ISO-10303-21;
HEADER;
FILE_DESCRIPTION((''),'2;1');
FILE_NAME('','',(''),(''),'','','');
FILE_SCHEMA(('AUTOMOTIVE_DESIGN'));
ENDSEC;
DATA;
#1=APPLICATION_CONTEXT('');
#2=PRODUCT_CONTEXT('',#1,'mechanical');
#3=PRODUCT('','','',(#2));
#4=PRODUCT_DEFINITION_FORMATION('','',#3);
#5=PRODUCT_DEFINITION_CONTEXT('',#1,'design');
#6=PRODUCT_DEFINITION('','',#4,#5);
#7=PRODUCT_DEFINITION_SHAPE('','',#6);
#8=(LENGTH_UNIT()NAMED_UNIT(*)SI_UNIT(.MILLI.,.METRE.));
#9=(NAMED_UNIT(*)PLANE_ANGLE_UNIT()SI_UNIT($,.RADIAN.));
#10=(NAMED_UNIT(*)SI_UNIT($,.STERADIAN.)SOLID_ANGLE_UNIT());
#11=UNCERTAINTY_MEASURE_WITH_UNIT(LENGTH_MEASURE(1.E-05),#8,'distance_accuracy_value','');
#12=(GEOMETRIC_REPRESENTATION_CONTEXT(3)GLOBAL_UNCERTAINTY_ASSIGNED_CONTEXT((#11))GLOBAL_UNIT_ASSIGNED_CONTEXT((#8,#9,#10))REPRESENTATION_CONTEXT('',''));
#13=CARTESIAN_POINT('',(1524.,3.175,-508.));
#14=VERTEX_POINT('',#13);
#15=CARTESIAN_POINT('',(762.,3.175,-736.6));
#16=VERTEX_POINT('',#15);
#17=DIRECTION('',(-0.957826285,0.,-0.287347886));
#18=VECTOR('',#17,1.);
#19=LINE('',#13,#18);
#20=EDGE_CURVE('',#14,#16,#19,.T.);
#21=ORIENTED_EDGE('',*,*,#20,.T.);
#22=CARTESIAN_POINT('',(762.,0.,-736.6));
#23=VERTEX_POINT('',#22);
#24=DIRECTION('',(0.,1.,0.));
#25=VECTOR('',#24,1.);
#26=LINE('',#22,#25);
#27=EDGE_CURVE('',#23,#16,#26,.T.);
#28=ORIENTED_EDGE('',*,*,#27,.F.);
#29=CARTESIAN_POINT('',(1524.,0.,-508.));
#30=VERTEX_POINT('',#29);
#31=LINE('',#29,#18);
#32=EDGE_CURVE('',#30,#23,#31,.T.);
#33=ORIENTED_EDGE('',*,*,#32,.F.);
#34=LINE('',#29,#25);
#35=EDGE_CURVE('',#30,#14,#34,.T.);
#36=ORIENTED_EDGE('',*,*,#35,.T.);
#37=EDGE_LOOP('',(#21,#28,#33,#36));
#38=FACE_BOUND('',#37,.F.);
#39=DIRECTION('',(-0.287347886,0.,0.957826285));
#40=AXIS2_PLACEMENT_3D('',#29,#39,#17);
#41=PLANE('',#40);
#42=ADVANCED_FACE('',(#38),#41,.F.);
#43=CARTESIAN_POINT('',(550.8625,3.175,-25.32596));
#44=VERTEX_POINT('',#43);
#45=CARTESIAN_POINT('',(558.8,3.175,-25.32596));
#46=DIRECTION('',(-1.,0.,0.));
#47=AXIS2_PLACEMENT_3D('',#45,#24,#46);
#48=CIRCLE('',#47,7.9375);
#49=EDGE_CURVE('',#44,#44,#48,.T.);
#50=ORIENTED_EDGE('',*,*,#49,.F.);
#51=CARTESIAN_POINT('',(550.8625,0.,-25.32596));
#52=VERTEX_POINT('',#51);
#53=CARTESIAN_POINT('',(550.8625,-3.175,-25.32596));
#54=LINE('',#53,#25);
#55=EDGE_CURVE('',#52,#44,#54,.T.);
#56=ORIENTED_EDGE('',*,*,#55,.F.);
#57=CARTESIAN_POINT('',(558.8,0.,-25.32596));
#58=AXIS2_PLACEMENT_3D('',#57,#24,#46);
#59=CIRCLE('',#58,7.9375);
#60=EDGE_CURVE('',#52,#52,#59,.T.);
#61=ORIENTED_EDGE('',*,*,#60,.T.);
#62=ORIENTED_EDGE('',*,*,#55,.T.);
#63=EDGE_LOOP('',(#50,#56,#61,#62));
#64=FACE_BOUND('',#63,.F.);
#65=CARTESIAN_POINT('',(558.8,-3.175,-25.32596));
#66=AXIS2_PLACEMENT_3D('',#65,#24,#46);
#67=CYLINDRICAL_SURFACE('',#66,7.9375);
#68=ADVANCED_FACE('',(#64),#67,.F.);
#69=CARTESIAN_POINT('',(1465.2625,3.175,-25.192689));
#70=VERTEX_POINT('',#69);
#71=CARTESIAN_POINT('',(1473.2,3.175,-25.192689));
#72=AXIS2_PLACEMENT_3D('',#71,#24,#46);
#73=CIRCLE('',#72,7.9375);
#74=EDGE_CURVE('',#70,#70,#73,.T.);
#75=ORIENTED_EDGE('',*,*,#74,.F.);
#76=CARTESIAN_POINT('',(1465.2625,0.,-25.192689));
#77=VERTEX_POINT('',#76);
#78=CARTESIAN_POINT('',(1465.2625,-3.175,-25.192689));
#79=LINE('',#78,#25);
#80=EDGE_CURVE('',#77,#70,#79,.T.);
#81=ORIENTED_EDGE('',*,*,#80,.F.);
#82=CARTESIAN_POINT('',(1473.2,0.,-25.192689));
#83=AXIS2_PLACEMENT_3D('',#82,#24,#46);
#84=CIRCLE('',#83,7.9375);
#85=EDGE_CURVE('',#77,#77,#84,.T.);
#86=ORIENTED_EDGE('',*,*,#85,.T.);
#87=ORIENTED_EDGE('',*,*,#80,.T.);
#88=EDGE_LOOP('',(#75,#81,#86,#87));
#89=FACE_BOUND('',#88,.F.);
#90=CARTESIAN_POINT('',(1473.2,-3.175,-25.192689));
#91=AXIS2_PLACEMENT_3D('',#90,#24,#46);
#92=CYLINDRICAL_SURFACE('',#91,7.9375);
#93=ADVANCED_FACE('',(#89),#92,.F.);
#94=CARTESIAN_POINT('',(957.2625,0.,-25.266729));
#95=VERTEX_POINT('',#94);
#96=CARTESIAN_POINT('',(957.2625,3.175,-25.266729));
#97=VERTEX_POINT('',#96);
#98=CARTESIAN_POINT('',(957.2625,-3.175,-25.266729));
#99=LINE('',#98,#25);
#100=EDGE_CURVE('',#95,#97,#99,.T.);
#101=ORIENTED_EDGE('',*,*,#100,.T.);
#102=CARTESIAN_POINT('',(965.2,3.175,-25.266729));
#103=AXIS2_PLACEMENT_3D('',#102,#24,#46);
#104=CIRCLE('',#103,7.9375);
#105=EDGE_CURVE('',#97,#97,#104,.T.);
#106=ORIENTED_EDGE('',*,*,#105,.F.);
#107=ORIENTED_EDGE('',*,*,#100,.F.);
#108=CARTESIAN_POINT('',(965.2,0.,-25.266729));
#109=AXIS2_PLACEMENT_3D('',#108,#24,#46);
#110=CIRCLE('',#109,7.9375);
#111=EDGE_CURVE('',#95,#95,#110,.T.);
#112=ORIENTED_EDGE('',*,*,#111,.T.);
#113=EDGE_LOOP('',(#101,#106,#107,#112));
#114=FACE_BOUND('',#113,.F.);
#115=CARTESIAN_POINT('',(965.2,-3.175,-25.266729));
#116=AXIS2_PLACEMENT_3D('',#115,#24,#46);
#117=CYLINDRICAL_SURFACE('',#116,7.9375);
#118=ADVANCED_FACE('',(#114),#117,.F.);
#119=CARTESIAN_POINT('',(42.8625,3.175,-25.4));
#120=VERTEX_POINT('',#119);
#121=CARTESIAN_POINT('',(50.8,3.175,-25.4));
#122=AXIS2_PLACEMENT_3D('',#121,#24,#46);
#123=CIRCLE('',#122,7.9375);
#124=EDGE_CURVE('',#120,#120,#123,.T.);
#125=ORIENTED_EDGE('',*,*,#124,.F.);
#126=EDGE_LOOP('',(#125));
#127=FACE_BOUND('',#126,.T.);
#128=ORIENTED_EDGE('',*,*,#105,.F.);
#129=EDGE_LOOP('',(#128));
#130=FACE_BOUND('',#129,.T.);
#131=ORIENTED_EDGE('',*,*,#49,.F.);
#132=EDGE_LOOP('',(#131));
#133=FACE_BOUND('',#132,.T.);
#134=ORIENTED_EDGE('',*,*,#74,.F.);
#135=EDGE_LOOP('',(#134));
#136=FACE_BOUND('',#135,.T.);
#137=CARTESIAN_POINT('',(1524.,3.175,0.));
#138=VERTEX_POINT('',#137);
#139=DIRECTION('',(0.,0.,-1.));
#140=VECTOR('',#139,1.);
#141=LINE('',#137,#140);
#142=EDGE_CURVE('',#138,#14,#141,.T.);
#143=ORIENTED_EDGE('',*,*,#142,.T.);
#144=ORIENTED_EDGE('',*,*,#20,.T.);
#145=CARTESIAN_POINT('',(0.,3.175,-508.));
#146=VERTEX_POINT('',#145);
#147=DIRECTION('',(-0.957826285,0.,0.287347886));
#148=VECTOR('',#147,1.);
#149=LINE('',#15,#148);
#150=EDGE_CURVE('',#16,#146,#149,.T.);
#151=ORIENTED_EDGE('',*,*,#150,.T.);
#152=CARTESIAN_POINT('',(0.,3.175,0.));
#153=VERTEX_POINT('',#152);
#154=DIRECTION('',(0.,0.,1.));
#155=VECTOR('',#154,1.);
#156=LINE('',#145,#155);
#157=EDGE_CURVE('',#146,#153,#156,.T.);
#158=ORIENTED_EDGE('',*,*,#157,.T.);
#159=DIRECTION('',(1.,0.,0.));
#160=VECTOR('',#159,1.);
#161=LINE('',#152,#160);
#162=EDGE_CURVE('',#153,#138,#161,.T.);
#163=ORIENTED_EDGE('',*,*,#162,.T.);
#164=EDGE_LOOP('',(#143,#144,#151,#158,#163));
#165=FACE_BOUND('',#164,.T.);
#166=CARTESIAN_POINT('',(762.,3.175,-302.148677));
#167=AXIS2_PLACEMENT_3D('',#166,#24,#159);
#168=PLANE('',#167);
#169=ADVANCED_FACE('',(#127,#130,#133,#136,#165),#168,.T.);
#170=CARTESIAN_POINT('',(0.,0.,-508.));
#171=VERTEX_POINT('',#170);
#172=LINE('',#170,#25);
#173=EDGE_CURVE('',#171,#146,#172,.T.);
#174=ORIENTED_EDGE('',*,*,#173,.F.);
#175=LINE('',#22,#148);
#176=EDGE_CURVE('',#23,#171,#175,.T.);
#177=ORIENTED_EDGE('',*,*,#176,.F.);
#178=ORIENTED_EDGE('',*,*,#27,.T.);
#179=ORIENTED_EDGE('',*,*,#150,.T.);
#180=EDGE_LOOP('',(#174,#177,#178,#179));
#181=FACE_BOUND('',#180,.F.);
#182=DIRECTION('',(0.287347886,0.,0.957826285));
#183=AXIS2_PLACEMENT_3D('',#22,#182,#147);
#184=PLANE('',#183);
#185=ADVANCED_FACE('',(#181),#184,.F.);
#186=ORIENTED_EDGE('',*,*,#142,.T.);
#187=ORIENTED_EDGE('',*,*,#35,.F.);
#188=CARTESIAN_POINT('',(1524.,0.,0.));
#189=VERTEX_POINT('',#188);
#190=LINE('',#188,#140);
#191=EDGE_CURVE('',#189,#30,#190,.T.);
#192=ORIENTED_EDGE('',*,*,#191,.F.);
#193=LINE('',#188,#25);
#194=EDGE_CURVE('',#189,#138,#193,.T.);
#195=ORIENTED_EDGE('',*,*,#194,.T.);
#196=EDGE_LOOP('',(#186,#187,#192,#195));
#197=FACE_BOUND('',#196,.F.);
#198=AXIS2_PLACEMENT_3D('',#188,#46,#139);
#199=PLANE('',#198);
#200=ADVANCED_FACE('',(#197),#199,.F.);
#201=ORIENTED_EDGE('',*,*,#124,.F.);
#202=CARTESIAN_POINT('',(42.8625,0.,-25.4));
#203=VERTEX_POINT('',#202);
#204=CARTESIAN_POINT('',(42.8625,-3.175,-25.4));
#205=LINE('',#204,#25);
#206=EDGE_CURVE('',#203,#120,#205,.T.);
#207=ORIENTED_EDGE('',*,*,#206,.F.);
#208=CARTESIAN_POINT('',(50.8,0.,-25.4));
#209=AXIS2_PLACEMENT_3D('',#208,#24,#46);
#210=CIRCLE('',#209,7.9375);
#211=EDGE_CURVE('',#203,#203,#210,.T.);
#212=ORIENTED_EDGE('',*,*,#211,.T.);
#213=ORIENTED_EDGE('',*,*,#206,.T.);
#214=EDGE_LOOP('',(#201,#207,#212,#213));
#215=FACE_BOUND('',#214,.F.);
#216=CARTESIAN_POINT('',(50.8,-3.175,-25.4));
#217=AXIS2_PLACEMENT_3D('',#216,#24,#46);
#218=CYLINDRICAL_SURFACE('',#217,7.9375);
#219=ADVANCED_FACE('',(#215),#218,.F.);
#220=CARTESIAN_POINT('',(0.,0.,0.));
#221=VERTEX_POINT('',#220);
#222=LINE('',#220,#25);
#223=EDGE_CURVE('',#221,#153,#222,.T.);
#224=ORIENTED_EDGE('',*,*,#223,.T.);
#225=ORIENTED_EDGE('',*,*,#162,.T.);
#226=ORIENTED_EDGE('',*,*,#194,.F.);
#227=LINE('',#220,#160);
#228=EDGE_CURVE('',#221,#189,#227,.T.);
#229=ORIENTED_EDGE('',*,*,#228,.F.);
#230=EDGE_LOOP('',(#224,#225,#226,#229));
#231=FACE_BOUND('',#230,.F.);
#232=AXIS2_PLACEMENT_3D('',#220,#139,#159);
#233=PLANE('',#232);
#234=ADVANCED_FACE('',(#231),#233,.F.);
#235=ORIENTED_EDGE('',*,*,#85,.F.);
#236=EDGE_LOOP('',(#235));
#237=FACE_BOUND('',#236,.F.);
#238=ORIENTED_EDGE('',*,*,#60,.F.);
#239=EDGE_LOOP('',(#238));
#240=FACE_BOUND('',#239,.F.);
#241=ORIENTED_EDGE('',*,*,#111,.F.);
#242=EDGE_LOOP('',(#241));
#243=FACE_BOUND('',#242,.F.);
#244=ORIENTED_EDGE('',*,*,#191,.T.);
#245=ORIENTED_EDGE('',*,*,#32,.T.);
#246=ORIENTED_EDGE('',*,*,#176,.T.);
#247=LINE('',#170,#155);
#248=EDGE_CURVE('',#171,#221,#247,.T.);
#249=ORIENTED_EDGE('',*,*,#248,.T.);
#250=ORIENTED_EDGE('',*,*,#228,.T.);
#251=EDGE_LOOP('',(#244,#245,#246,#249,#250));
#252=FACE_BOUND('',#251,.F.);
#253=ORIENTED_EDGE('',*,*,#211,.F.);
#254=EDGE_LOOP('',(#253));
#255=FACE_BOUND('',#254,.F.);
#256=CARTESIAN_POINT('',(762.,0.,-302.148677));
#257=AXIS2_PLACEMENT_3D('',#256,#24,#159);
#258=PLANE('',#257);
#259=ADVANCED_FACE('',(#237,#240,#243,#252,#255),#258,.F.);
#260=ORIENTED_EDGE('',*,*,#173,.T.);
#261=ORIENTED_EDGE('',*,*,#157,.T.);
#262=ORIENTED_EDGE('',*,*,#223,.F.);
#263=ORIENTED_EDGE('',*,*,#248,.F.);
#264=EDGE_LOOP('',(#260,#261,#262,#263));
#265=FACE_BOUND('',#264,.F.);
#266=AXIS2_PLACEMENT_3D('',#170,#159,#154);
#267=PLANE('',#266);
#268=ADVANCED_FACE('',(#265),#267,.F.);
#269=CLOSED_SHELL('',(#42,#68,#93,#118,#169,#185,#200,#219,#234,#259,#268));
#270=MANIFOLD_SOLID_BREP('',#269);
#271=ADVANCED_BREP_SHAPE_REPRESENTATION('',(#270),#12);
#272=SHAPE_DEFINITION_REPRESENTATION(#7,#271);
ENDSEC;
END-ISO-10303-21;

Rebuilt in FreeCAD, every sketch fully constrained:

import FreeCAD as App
import Part
import Sketcher
from FreeCAD import Vector
Q = App.Units.Quantity


def add_polygon(sketch, points):
    """Adds a closed chain of lines whose ends are joined by coincident constraints."""
    first, n = sketch.GeometryCount, len(points)
    for a, b in zip(points, points[1:] + points[:1]):
        sketch.addGeometry(Part.LineSegment(App.Vector(*a, 0), App.Vector(*b, 0)), False)
    for i in range(n):
        sketch.addConstraint(Sketcher.Constraint("Coincident", first + i, 2, first + (i + 1) % n, 1))

doc = App.newDocument("Part")
body = doc.addObject("PartDesign::Body", "Body")

sketch1 = doc.addObject("Sketcher::SketchObject", "Sketch")
body.addObject(sketch1)
sketch1.AttachmentSupport = (doc.XZ_Plane, [""])
sketch1.MapMode = "FlatFace"
add_polygon(sketch1, [(0, 0), (1524, 0), (1524, -508), (762, -737), (0, -508)])
sketch1.addConstraint(Sketcher.Constraint("Horizontal", 0))
sketch1.addConstraint(Sketcher.Constraint("Vertical", 1))
sketch1.addConstraint(Sketcher.Constraint("Vertical", 4))
sketch1.addConstraint(Sketcher.Constraint("Coincident", 4, 2, -1, 1))
sketch1.addConstraint(Sketcher.Constraint("Horizontal", 1, 2, 3, 2))
sketch1.addConstraint(Sketcher.Constraint("Equal", 2, 3))
sketch1.addConstraint(Sketcher.Constraint("DistanceX", 0, 1, 0, 2, Q("60 in")))
sketch1.addConstraint(Sketcher.Constraint("DistanceY", 1, 2, 1, 1, Q("20 in")))
sketch1.addConstraint(Sketcher.Constraint("DistanceY", 2, 2, -1, 1, Q("29 in")))
pad1 = doc.addObject("PartDesign::Pad", "Pad")
body.addObject(pad1)
pad1.Profile = sketch1
pad1.Length = Q("0.125 in")
pad1.Reversed = True

sketch2 = doc.addObject("Sketcher::SketchObject", "Sketch001")
body.addObject(sketch2)
sketch2.AttachmentSupport = (doc.XZ_Plane, [""])
sketch2.MapMode = "FlatFace"
sketch2.addGeometry(Part.Circle(Vector(51, -25, 0), Vector(0, 0, 1), 8), False)
sketch2.addGeometry(Part.Circle(Vector(559, -25, 0), Vector(0, 0, 1), 8), False)
sketch2.addGeometry(Part.Circle(Vector(965, -25, 0), Vector(0, 0, 1), 8), False)
sketch2.addGeometry(Part.Circle(Vector(1473, -25, 0), Vector(0, 0, 1), 8), False)
sketch2.addConstraint(Sketcher.Constraint("Equal", 0, 1))
sketch2.addConstraint(Sketcher.Constraint("Equal", 1, 2))
sketch2.addConstraint(Sketcher.Constraint("Equal", 2, 3))
sketch2.addConstraint(Sketcher.Constraint("Diameter", 0, Q("0.625 in")))
sketch2.addConstraint(Sketcher.Constraint("DistanceX", -1, 1, 0, 3, Q("2 in")))
sketch2.addConstraint(Sketcher.Constraint("DistanceY", 0, 3, -1, 1, Q("1 in")))
sketch2.addConstraint(Sketcher.Constraint("DistanceX", -1, 1, 1, 3, Q("22 in")))
sketch2.addConstraint(Sketcher.Constraint("DistanceX", -1, 1, 2, 3, Q("38 in")))
sketch2.addConstraint(Sketcher.Constraint("DistanceX", -1, 1, 3, 3, Q("58 in")))
sketch2.addConstraint(Sketcher.Constraint("DistanceY", 1, 3, -1, 1, Q("25.32596 mm")))
sketch2.addConstraint(Sketcher.Constraint("DistanceY", 2, 3, -1, 1, Q("25.266729 mm")))
sketch2.addConstraint(Sketcher.Constraint("DistanceY", 3, 3, -1, 1, Q("25.192689 mm")))
doc.recompute()
hole = doc.addObject("PartDesign::Hole", "Hole")
body.addObject(hole)
hole.Profile = sketch2
hole.ThreadType = "None"
hole.Diameter = Q("0.625 in")
hole.DepthType = "Dimension"
hole.Depth = Q("0.125 in")
hole.DrillPoint = "Flat"

doc.recompute()
